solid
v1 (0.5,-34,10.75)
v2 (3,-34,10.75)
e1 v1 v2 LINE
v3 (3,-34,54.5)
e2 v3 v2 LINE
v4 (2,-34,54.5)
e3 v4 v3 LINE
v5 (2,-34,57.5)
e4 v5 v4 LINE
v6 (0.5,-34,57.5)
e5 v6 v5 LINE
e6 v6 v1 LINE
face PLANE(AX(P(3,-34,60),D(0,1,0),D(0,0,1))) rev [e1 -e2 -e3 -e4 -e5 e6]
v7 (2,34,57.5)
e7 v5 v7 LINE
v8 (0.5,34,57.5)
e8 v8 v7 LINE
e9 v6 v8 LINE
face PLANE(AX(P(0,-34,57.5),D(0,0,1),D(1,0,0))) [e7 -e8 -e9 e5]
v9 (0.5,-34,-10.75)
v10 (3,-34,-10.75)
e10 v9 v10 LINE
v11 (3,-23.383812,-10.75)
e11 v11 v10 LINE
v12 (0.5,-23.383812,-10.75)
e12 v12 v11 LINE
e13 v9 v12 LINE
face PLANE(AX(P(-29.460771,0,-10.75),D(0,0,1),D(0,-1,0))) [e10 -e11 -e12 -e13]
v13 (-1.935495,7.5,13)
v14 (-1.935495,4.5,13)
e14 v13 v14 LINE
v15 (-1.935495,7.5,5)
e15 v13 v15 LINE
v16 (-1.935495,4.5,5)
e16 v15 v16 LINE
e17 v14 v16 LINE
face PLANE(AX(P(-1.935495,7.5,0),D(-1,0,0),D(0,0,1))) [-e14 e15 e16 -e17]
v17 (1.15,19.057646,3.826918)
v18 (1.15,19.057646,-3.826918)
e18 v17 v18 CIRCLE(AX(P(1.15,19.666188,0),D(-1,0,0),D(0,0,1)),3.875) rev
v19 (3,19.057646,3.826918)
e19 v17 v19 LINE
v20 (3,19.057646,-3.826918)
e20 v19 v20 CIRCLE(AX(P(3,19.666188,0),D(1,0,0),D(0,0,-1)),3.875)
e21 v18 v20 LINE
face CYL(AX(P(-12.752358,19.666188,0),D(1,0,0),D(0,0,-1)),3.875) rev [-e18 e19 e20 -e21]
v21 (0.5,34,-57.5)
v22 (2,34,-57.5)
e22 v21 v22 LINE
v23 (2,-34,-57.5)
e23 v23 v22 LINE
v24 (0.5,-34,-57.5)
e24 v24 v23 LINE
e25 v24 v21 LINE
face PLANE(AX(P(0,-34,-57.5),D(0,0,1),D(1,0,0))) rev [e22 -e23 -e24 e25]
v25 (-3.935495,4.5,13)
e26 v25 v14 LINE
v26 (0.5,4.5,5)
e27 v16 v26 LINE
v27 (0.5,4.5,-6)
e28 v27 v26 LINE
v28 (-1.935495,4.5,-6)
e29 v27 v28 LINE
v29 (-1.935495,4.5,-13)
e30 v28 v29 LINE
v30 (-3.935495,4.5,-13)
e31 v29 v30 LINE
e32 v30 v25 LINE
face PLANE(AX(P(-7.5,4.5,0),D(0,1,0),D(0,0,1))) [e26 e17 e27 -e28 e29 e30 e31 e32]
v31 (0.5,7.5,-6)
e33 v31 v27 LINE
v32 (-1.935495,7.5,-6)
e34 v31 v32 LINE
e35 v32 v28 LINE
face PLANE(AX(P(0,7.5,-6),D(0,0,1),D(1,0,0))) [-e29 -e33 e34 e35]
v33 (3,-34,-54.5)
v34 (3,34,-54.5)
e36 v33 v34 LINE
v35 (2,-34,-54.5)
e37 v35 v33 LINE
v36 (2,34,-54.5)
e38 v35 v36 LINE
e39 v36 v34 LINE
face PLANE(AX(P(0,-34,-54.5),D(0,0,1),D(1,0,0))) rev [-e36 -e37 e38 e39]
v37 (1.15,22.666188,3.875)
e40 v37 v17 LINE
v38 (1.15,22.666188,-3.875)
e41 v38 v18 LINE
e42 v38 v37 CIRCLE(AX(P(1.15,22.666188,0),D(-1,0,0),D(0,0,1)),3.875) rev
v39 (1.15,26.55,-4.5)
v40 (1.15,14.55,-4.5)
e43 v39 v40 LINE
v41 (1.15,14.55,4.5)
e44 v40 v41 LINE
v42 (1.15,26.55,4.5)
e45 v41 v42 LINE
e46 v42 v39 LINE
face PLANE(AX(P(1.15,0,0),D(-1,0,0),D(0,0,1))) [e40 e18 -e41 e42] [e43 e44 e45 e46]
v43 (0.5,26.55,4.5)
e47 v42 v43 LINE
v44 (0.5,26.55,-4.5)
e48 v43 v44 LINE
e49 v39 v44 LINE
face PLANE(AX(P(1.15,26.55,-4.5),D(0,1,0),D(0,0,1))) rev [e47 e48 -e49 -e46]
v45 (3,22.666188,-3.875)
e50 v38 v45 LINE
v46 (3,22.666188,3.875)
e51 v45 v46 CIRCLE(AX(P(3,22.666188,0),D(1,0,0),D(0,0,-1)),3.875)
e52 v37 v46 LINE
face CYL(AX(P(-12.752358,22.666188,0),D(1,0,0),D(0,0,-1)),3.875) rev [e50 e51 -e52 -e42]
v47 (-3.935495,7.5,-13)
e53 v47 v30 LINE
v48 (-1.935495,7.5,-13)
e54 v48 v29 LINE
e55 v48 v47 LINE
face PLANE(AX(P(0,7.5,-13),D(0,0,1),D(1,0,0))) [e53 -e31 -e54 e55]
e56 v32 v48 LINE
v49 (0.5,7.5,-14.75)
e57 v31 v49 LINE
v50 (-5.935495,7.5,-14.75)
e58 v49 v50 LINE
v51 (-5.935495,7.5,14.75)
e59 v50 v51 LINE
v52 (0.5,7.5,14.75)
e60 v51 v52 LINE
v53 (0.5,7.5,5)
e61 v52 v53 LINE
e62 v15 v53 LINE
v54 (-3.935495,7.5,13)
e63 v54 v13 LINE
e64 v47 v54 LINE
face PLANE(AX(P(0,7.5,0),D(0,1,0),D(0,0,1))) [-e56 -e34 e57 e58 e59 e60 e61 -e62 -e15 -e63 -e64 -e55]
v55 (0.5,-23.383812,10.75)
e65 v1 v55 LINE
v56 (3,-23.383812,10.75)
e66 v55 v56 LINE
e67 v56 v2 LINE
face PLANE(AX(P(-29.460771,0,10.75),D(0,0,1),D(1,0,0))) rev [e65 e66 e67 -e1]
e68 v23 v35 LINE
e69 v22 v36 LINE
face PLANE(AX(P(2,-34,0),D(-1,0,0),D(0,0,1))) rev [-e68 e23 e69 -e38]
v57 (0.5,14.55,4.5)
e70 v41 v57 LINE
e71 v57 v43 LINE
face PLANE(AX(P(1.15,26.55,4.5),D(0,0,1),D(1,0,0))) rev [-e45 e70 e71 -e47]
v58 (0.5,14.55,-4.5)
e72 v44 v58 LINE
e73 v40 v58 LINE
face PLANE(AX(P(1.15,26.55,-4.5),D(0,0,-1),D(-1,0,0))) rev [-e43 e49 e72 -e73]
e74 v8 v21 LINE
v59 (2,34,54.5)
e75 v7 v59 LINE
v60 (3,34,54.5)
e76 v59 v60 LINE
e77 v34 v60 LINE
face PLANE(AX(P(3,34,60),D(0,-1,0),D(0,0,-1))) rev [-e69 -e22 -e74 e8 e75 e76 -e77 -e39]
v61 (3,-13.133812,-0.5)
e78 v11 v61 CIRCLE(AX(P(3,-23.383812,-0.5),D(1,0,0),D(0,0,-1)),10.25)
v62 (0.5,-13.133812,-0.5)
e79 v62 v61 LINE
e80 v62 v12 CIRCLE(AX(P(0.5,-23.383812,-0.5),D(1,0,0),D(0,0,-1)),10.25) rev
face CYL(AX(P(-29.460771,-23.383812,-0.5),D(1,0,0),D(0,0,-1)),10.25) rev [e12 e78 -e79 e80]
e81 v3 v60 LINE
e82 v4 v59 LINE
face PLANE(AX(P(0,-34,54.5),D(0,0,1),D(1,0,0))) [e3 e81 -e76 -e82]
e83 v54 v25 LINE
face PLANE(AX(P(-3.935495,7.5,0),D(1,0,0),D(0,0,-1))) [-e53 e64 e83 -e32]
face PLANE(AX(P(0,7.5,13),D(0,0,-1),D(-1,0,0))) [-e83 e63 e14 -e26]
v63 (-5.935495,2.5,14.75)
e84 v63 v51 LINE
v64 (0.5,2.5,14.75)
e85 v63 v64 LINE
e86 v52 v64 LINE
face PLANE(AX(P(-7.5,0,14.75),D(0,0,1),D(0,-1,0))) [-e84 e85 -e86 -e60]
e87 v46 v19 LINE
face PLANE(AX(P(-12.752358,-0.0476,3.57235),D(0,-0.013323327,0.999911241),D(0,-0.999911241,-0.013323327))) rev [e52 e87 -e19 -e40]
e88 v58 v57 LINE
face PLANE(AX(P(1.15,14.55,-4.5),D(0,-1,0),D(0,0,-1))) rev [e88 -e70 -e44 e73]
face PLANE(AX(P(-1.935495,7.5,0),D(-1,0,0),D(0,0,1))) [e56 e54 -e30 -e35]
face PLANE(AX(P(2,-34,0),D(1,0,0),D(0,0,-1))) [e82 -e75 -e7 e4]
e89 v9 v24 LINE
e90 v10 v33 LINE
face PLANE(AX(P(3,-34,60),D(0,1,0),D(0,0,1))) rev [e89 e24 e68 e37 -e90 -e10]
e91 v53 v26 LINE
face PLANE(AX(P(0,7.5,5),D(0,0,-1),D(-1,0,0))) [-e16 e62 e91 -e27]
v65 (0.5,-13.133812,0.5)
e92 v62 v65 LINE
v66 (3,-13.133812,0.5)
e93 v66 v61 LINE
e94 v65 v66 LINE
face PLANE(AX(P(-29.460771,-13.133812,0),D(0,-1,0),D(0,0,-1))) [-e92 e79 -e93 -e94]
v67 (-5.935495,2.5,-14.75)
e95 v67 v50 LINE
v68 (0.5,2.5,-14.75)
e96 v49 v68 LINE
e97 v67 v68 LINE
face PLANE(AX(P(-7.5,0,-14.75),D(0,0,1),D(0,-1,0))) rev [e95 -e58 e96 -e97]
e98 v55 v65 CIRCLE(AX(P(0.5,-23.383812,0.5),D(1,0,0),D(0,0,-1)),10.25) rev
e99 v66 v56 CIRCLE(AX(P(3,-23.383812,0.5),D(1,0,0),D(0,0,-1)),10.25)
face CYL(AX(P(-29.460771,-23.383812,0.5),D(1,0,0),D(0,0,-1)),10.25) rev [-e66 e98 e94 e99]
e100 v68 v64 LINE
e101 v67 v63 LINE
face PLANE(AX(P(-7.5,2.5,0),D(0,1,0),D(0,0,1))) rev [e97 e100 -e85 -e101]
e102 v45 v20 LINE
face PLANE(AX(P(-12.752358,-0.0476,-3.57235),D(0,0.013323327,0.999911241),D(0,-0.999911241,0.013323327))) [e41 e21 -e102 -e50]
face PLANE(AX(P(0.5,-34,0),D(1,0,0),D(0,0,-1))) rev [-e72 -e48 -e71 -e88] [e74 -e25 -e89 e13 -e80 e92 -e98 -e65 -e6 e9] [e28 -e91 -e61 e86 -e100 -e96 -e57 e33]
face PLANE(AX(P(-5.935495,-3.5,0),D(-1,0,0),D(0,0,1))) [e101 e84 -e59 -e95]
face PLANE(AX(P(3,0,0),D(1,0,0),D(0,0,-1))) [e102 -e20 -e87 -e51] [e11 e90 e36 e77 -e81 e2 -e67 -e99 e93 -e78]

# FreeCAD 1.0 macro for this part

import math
import FreeCAD as App
import Part
import Sketcher
from FreeCAD import Vector
Q = App.Units.Quantity


def add_polygon(sketch, points):
    """Adds a closed chain of lines whose ends are joined by coincident constraints."""
    first, n = sketch.GeometryCount, len(points)
    for a, b in zip(points, points[1:] + points[:1]):
        sketch.addGeometry(Part.LineSegment(App.Vector(*a, 0), App.Vector(*b, 0)), False)
    for i in range(n):
        sketch.addConstraint(Sketcher.Constraint("Coincident", first + i, 2, first + (i + 1) % n, 1))

doc = App.newDocument("Part")
body = doc.addObject("PartDesign::Body", "Body")

# Sketch on YZ plane
sketch1 = body.newObject("Sketcher::SketchObject", "Sketch")
sketch1.AttachmentSupport = (doc.getObject("YZ_Plane"), [""])
sketch1.MapMode = "FlatFace"
add_polygon(sketch1, [(34, 60), (-34, 60), (-34, -60), (34, -60)])  # lines 0-3
sketch1.addConstraint([
    Sketcher.Constraint("Horizontal", 0),
    Sketcher.Constraint("Vertical", 1),
    Sketcher.Constraint("Horizontal", 2),
    Sketcher.Constraint("Vertical", 3),
    Sketcher.Constraint("Symmetric", 0, 2, 2, 2, -1, 1),
    Sketcher.Constraint("DistanceX", 0, 2, 0, 1, Q("68 mm")),
    Sketcher.Constraint("DistanceY", 1, 2, 1, 1, Q("120 mm")),
])
pad1 = body.newObject("PartDesign::Pad", "Pad")
pad1.Profile = sketch1
pad1.Length = 3

# Sketch on XZ plane
sketch2 = body.newObject("Sketcher::SketchObject", "Sketch001")
sketch2.AttachmentSupport = (doc.getObject("XZ_Plane"), [""])
sketch2.MapMode = "FlatFace"
sketch2.AttachmentOffset = App.Placement(Vector(0, 0, -34), App.Rotation())
add_polygon(sketch2, [(0.5, 57.5), (0.5, -57.5), (2, -57.5), (2, -54.5), (3, -54.5), (3, -60), (0, -60), (0, 60), (3, 60), (3, 54.5), (2, 54.5), (2, 57.5)])  # lines 0-11
sketch2.addConstraint([
    Sketcher.Constraint("Vertical", 0),
    Sketcher.Constraint("Horizontal", 1),
    Sketcher.Constraint("Vertical", 2),
    Sketcher.Constraint("Horizontal", 3),
    Sketcher.Constraint("Vertical", 4),
    Sketcher.Constraint("Horizontal", 5),
    Sketcher.Constraint("Vertical", 6),
    Sketcher.Constraint("Horizontal", 7),
    Sketcher.Constraint("Vertical", 8),
    Sketcher.Constraint("Horizontal", 9),
    Sketcher.Constraint("Vertical", 10),
    Sketcher.Constraint("Horizontal", 11),
    Sketcher.Constraint("Symmetric", 5, 2, 6, 2, -1, 1),
    Sketcher.Constraint("Symmetric", 3, 2, 8, 2, -1),
    Sketcher.Constraint("Symmetric", 1, 2, 10, 2, -1),
    Sketcher.Constraint("Equal", 7, 2),
    Sketcher.Constraint("DistanceX", 3, 1, 3, 2, Q("1 mm")),
    Sketcher.Constraint("DistanceX", 5, 2, 5, 1, Q("3 mm")),
    Sketcher.Constraint("DistanceY", 0, 2, 0, 1, Q("115 mm")),
    Sketcher.Constraint("DistanceY", 6, 1, 6, 2, Q("120 mm")),
    Sketcher.Constraint("DistanceX", 1, 1, 1, 2, Q("1.5 mm")),
])
pocket1 = body.newObject("PartDesign::Pocket", "Pocket")
pocket1.Profile = sketch2
pocket1.Type = "ThroughAll"
pocket1.Reversed = True

# Sketch on YZ plane
sketch3 = body.newObject("Sketcher::SketchObject", "Sketch002")
sketch3.AttachmentSupport = (doc.getObject("YZ_Plane"), [""])
sketch3.MapMode = "FlatFace"
sketch3.AttachmentOffset = App.Placement(Vector(0, 0, 3), App.Rotation())
sketch3.addGeometry([
    Part.LineSegment(Vector(-13.1, -0.5, 0), Vector(-13.1, 0.5, 0)),  # 0
    Part.ArcOfCircle(Part.Circle(Vector(-23.4, 0.5, 0), Vector(0, 0, 1), 10.2), math.radians(0), math.radians(90)),  # 1
    Part.LineSegment(Vector(-23.4, 10.8, 0), Vector(-34, 10.8, 0)),  # 2
    Part.LineSegment(Vector(-34, 10.8, 0), Vector(-34, -10.8, 0)),  # 3
    Part.LineSegment(Vector(-34, -10.8, 0), Vector(-23.4, -10.8, 0)),  # 4
    Part.ArcOfCircle(Part.Circle(Vector(-23.4, -0.5, 0), Vector(0, 0, 1), 10.2), math.radians(-90), math.radians(0)),  # 5
], False)
sketch3.addConstraint([
    Sketcher.Constraint("Tangent", 0, 2, 1, 1),
    Sketcher.Constraint("Tangent", 1, 2, 2, 1),
    Sketcher.Constraint("Coincident", 2, 2, 3, 1),
    Sketcher.Constraint("Coincident", 3, 2, 4, 1),
    Sketcher.Constraint("Tangent", 4, 2, 5, 1),
    Sketcher.Constraint("Tangent", 5, 2, 0, 1),
    Sketcher.Constraint("Vertical", 0),
    Sketcher.Constraint("Horizontal", 2),
    Sketcher.Constraint("Vertical", 3),
    Sketcher.Constraint("Horizontal", 4),
    Sketcher.Constraint("Equal", 1, 5),
    Sketcher.Constraint("DistanceY", 0, 1, 0, 2, Q("1 mm")),
    Sketcher.Constraint("Radius", 1, Q("10.25 mm")),
    Sketcher.Constraint("DistanceX", 2, 2, -1, 1, Q("34 mm")),
    Sketcher.Constraint("DistanceY", -1, 1, 1, 3, Q("0.5 mm")),
    Sketcher.Constraint("DistanceX", 2, 2, 2, 1, Q("10.616188 mm")),
])
pocket2 = body.newObject("PartDesign::Pocket", "Pocket001")
pocket2.Profile = sketch3
pocket2.Length = 2.5

# Sketch on YZ plane
sketch4 = body.newObject("Sketcher::SketchObject", "Sketch003")
sketch4.AttachmentSupport = (doc.getObject("YZ_Plane"), [""])
sketch4.MapMode = "FlatFace"
sketch4.AttachmentOffset = App.Placement(Vector(0, 0, 3), App.Rotation())
sketch4.addGeometry([
    Part.LineSegment(Vector(22.7, 3.9, 0), Vector(19.1, 3.8, 0)),
    Part.ArcOfCircle(Part.Circle(Vector(19.7, 0, 0), Vector(0, 0, 1), 3.9), math.radians(99), math.radians(261)),
    Part.LineSegment(Vector(19.1, -3.8, 0), Vector(22.7, -3.9, 0)),
    Part.ArcOfCircle(Part.Circle(Vector(22.7, 0, 0), Vector(0, 0, 1), 3.9), math.radians(-90), math.radians(90)),
], False)
sketch4.addConstraint([
    Sketcher.Constraint("Coincident", 0, 2, 1, 1),
    Sketcher.Constraint("Coincident", 1, 2, 2, 1),
    Sketcher.Constraint("Coincident", 2, 2, 3, 1),
    Sketcher.Constraint("Coincident", 3, 2, 0, 1),
    Sketcher.Constraint("Equal", 1, 3),
    Sketcher.Constraint("Symmetric", 0, 2, 1, 2, -1),
    Sketcher.Constraint("Symmetric", 2, 2, 3, 2, -1),
    Sketcher.Constraint("Vertical", 3, 3, 2, 2),
    Sketcher.Constraint("Radius", 1, Q("3.875 mm")),
    Sketcher.Constraint("DistanceX", 1, 3, 3, 3, Q("3 mm")),
    Sketcher.Constraint("DistanceX", -1, 1, 1, 3, Q("19.666188 mm")),
    Sketcher.Constraint("Distance", 0, Q("3.608863 mm")),
])
pocket3 = body.newObject("PartDesign::Pocket", "Pocket002")
pocket3.Profile = sketch4
pocket3.Length = 2.5

# Sketch on YZ plane
sketch5 = body.newObject("Sketcher::SketchObject", "Sketch004")
sketch5.AttachmentSupport = (doc.getObject("YZ_Plane"), [""])
sketch5.MapMode = "FlatFace"
sketch5.AttachmentOffset = App.Placement(Vector(0, 0, 0.5), App.Rotation())
add_polygon(sketch5, [(27, -4), (15, -4), (15, 4), (27, 4)])  # lines 0-3
sketch5.addConstraint([
    Sketcher.Constraint("Horizontal", 0),
    Sketcher.Constraint("Vertical", 1),
    Sketcher.Constraint("Horizontal", 2),
    Sketcher.Constraint("Vertical", 3),
    Sketcher.Constraint("DistanceX", 0, 2, 0, 1, Q("12 mm")),
    Sketcher.Constraint("DistanceY", 1, 1, 1, 2, Q("9 mm")),
    Sketcher.Constraint("DistanceY", 0, 2, -1, 1, Q("4.5 mm")),
    Sketcher.Constraint("DistanceX", -1, 1, 0, 2, Q("14.55 mm")),
])
pocket4 = body.newObject("PartDesign::Pocket", "Pocket003")
pocket4.Profile = sketch5
pocket4.Length = 0.65
pocket4.Reversed = True

# Sketch on YZ plane
sketch6 = body.newObject("Sketcher::SketchObject", "Sketch005")
sketch6.AttachmentSupport = (doc.getObject("YZ_Plane"), [""])
sketch6.MapMode = "FlatFace"
sketch6.AttachmentOffset = App.Placement(Vector(0, 0, 0.5), App.Rotation())
add_polygon(sketch6, [(4.5, -14.8), (2.5, -14.8), (2.5, 14.8), (4.5, 14.8)])  # lines 0-3
sketch6.addConstraint([
    Sketcher.Constraint("Horizontal", 0),
    Sketcher.Constraint("Vertical", 1),
    Sketcher.Constraint("Horizontal", 2),
    Sketcher.Constraint("Vertical", 3),
    Sketcher.Constraint("DistanceX", 0, 2, 0, 1, Q("2 mm")),
    Sketcher.Constraint("DistanceY", 1, 1, 1, 2, Q("29.5 mm")),
    Sketcher.Constraint("DistanceX", -1, 1, 0, 2, Q("2.5 mm")),
    Sketcher.Constraint("DistanceY", 0, 2, -1, 1, Q("14.75 mm")),
])
pad2 = body.newObject("PartDesign::Pad", "Pad001")
pad2.Profile = sketch6
pad2.Length = 8
pad2.Reversed = True

# Sketch on XZ plane
sketch7 = body.newObject("Sketcher::SketchObject", "Sketch006")
sketch7.AttachmentSupport = (doc.getObject("XZ_Plane"), [""])
sketch7.MapMode = "FlatFace"
sketch7.AttachmentOffset = App.Placement(Vector(0, 0, -4.5), App.Rotation())
add_polygon(sketch7, [(-7.5, -14.8), (-7.5, 14.8), (-5.9, 14.8), (-5.9, -14.8)])  # lines 0-3
sketch7.addConstraint([
    Sketcher.Constraint("Vertical", 0),
    Sketcher.Constraint("Horizontal", 1),
    Sketcher.Constraint("Vertical", 2),
    Sketcher.Constraint("Horizontal", 3),
    Sketcher.Constraint("DistanceY", 0, 1, 0, 2, Q("29.5 mm")),
    Sketcher.Constraint("DistanceX", 0, 2, -1, 1, Q("7.5 mm")),
    Sketcher.Constraint("DistanceY", -1, 1, 0, 2, Q("14.75 mm")),
    Sketcher.Constraint("DistanceX", 1, 1, 1, 2, Q("1.564505 mm")),
])
pocket5 = body.newObject("PartDesign::Pocket", "Pocket004")
pocket5.Profile = sketch7
pocket5.Length = 8
pocket5.Reversed = True

# Sketch on XZ plane
sketch8 = body.newObject("Sketcher::SketchObject", "Sketch007")
sketch8.AttachmentSupport = (doc.getObject("XZ_Plane"), [""])
sketch8.MapMode = "FlatFace"
sketch8.AttachmentOffset = App.Placement(Vector(0, 0, -4.5), App.Rotation())
add_polygon(sketch8, [(0.5, -6), (0.5, -14.8), (-5.9, -14.8), (-5.9, 14.8), (0.5, 14.8), (0.5, 5), (-1.9, 5), (-1.9, 13), (-3.9, 13), (-3.9, -13), (-1.9, -13), (-1.9, -6)])  # lines 0-11
sketch8.addConstraint([
    Sketcher.Constraint("Vertical", 0),
    Sketcher.Constraint("Horizontal", 1),
    Sketcher.Constraint("Vertical", 2),
    Sketcher.Constraint("Horizontal", 3),
    Sketcher.Constraint("Vertical", 4),
    Sketcher.Constraint("Horizontal", 5),
    Sketcher.Constraint("Vertical", 6),
    Sketcher.Constraint("Horizontal", 7),
    Sketcher.Constraint("Vertical", 8),
    Sketcher.Constraint("Horizontal", 9),
    Sketcher.Constraint("Vertical", 10),
    Sketcher.Constraint("Horizontal", 11),
    Sketcher.Constraint("Symmetric", 0, 2, 3, 2, -1),
    Sketcher.Constraint("Symmetric", 6, 2, 9, 2, -1),
    Sketcher.Constraint("DistanceX", 7, 2, 7, 1, Q("2 mm")),
    Sketcher.Constraint("DistanceY", 6, 1, 6, 2, Q("8 mm")),
    Sketcher.Constraint("DistanceY", 8, 2, 8, 1, Q("26 mm")),
    Sketcher.Constraint("DistanceY", 10, 1, 10, 2, Q("7 mm")),
    Sketcher.Constraint("DistanceY", 2, 1, 2, 2, Q("29.5 mm")),
    Sketcher.Constraint("DistanceX", 2, 2, 5, 2, Q("4 mm")),
    Sketcher.Constraint("DistanceX", -1, 1, 0, 2, Q("0.5 mm")),
    Sketcher.Constraint("DistanceX", 1, 2, 1, 1, Q("6.435495 mm")),
])
pad3 = body.newObject("PartDesign::Pad", "Pad002")
pad3.Profile = sketch8
pad3.Length = 3
pad3.Reversed = True

doc.recompute()
